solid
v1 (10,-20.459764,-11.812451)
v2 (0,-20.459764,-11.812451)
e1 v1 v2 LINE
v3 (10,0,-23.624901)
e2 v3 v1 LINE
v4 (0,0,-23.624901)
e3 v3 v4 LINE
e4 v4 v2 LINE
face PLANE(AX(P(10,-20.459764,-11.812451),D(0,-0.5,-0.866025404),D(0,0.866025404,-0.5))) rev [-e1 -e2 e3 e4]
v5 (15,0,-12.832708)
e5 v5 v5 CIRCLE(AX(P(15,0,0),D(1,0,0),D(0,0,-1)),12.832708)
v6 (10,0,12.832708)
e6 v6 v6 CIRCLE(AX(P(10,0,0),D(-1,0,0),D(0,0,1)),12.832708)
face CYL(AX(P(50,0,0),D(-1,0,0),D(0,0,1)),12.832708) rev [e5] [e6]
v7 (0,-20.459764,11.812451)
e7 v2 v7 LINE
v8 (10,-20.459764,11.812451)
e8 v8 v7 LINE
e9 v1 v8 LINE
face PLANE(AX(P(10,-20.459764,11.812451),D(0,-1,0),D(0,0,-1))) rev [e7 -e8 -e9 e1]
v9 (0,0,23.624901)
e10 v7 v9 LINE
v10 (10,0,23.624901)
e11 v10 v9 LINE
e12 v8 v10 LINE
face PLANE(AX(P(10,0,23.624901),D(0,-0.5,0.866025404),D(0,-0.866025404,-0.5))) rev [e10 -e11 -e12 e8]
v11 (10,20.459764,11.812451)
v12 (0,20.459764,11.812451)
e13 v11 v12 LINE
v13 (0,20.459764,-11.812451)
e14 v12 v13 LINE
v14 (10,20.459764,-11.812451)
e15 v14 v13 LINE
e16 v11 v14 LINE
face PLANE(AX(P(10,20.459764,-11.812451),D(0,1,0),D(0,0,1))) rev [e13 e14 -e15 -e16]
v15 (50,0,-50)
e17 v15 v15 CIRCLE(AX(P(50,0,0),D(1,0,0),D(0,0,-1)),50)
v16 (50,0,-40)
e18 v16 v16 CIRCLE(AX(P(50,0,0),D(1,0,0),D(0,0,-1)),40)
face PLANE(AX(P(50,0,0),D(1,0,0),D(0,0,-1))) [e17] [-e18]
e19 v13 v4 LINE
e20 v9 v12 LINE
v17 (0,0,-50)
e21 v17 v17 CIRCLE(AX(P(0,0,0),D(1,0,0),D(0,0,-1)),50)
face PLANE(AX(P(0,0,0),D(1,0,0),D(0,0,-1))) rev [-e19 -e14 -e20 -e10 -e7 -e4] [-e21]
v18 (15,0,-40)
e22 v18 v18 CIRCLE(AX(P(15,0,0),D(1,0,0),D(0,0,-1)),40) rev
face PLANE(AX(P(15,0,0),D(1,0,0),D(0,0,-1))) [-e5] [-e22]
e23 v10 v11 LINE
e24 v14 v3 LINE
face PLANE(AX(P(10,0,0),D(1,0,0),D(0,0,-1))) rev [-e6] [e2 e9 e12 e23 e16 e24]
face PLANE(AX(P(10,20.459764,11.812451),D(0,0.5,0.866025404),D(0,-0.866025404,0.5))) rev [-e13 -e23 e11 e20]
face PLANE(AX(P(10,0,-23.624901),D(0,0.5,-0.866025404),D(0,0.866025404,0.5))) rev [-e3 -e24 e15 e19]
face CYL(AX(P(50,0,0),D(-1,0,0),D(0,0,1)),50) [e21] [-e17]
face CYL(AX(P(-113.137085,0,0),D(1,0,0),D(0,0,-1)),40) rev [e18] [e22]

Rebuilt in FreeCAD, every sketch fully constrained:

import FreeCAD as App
import Part
import Sketcher

V = App.Vector
Q = App.Units.Quantity


def add_polygon(sketch, points):
    """Adds a closed chain of lines whose ends are joined by coincident constraints."""
    first, n = sketch.GeometryCount, len(points)
    for a, b in zip(points, points[1:] + points[:1]):
        sketch.addGeometry(Part.LineSegment(App.Vector(*a, 0), App.Vector(*b, 0)), False)
    for i in range(n):
        sketch.addConstraint(Sketcher.Constraint("Coincident", first + i, 2, first + (i + 1) % n, 1))

doc = App.newDocument("Part")
body = doc.addObject("PartDesign::Body", "Body")

sketch1 = body.newObject("Sketcher::SketchObject", "Sketch")
sketch1.AttachmentSupport = (doc.getObject("YZ_Plane"), [""])
sketch1.MapMode = "FlatFace"
sketch1.addGeometry(Part.Circle(V(0, 0, 0), V(0, 0, 1), 50), False)
sketch1.addConstraint([
    Sketcher.Constraint("Coincident", 0, 3, -1, 1),
    Sketcher.Constraint("Diameter", 0, 100.0),
])
pad1 = body.newObject("PartDesign::Pad", "Pad")
pad1.Profile = sketch1
pad1.Length = 50

sketch2 = body.newObject("Sketcher::SketchObject", "Sketch001")
sketch2.AttachmentSupport = (doc.getObject("YZ_Plane"), [""])
sketch2.MapMode = "FlatFace"
sketch2.AttachmentOffset = App.Placement(V(0, 0, 50), App.Rotation())
sketch2.addGeometry(Part.Circle(V(0, 0, 0), V(0, 0, 1), 40), False)
sketch2.addConstraint([
    Sketcher.Constraint("Coincident", 0, 3, -1, 1),
    Sketcher.Constraint("Diameter", 0, 80.0),
])
pocket1 = body.newObject("PartDesign::Pocket", "Pocket")
pocket1.Profile = sketch2
pocket1.Length = 35

sketch3 = body.newObject("Sketcher::SketchObject", "Sketch002")
sketch3.AttachmentSupport = (doc.getObject("YZ_Plane"), [""])
sketch3.MapMode = "FlatFace"
add_polygon(sketch3, [(20.459764, 11.812451), (20.459764, -11.812451), (0, -23.624901), (-20.459764, -11.812451), (-20.459764, 11.812451), (0, 23.624901)])
sketch3.addConstraint([
    Sketcher.Constraint("Vertical", 0),
    Sketcher.Constraint("Vertical", 3),
    Sketcher.Constraint("Symmetric", 0, 2, 3, 2, -1, 1),
    Sketcher.Constraint("Symmetric", 1, 2, 4, 2, -1, 1),
    Sketcher.Constraint("PointOnObject", 1, 2, -2),
    Sketcher.Constraint("Parallel", 2, 5),
    Sketcher.Constraint("Horizontal", 0, 2, 2, 2),
    Sketcher.Constraint("Angle", 1, Q("-150 deg")),
    Sketcher.Constraint("DistanceY", 0, 2, 0, 1, 23.624901),
    Sketcher.Constraint("Distance", 1, 23.624901),
])
pocket2 = body.newObject("PartDesign::Pocket", "Pocket001")
pocket2.Profile = sketch3
pocket2.Length = 10
pocket2.Reversed = True

sketch4 = body.newObject("Sketcher::SketchObject", "Sketch003")
sketch4.AttachmentSupport = (doc.getObject("YZ_Plane"), [""])
sketch4.MapMode = "FlatFace"
sketch4.AttachmentOffset = App.Placement(V(0, 0, 10), App.Rotation())
sketch4.addGeometry(Part.Circle(V(0, 0, 0), V(0, 0, 1), 12.832708), False)
sketch4.addConstraint([
    Sketcher.Constraint("Coincident", 0, 3, -1, 1),
    Sketcher.Constraint("Diameter", 0, 25.665415),
])
pocket3 = body.newObject("PartDesign::Pocket", "Pocket002")
pocket3.Profile = sketch4
pocket3.Type = "ThroughAll"
pocket3.Reversed = True

doc.recompute()
